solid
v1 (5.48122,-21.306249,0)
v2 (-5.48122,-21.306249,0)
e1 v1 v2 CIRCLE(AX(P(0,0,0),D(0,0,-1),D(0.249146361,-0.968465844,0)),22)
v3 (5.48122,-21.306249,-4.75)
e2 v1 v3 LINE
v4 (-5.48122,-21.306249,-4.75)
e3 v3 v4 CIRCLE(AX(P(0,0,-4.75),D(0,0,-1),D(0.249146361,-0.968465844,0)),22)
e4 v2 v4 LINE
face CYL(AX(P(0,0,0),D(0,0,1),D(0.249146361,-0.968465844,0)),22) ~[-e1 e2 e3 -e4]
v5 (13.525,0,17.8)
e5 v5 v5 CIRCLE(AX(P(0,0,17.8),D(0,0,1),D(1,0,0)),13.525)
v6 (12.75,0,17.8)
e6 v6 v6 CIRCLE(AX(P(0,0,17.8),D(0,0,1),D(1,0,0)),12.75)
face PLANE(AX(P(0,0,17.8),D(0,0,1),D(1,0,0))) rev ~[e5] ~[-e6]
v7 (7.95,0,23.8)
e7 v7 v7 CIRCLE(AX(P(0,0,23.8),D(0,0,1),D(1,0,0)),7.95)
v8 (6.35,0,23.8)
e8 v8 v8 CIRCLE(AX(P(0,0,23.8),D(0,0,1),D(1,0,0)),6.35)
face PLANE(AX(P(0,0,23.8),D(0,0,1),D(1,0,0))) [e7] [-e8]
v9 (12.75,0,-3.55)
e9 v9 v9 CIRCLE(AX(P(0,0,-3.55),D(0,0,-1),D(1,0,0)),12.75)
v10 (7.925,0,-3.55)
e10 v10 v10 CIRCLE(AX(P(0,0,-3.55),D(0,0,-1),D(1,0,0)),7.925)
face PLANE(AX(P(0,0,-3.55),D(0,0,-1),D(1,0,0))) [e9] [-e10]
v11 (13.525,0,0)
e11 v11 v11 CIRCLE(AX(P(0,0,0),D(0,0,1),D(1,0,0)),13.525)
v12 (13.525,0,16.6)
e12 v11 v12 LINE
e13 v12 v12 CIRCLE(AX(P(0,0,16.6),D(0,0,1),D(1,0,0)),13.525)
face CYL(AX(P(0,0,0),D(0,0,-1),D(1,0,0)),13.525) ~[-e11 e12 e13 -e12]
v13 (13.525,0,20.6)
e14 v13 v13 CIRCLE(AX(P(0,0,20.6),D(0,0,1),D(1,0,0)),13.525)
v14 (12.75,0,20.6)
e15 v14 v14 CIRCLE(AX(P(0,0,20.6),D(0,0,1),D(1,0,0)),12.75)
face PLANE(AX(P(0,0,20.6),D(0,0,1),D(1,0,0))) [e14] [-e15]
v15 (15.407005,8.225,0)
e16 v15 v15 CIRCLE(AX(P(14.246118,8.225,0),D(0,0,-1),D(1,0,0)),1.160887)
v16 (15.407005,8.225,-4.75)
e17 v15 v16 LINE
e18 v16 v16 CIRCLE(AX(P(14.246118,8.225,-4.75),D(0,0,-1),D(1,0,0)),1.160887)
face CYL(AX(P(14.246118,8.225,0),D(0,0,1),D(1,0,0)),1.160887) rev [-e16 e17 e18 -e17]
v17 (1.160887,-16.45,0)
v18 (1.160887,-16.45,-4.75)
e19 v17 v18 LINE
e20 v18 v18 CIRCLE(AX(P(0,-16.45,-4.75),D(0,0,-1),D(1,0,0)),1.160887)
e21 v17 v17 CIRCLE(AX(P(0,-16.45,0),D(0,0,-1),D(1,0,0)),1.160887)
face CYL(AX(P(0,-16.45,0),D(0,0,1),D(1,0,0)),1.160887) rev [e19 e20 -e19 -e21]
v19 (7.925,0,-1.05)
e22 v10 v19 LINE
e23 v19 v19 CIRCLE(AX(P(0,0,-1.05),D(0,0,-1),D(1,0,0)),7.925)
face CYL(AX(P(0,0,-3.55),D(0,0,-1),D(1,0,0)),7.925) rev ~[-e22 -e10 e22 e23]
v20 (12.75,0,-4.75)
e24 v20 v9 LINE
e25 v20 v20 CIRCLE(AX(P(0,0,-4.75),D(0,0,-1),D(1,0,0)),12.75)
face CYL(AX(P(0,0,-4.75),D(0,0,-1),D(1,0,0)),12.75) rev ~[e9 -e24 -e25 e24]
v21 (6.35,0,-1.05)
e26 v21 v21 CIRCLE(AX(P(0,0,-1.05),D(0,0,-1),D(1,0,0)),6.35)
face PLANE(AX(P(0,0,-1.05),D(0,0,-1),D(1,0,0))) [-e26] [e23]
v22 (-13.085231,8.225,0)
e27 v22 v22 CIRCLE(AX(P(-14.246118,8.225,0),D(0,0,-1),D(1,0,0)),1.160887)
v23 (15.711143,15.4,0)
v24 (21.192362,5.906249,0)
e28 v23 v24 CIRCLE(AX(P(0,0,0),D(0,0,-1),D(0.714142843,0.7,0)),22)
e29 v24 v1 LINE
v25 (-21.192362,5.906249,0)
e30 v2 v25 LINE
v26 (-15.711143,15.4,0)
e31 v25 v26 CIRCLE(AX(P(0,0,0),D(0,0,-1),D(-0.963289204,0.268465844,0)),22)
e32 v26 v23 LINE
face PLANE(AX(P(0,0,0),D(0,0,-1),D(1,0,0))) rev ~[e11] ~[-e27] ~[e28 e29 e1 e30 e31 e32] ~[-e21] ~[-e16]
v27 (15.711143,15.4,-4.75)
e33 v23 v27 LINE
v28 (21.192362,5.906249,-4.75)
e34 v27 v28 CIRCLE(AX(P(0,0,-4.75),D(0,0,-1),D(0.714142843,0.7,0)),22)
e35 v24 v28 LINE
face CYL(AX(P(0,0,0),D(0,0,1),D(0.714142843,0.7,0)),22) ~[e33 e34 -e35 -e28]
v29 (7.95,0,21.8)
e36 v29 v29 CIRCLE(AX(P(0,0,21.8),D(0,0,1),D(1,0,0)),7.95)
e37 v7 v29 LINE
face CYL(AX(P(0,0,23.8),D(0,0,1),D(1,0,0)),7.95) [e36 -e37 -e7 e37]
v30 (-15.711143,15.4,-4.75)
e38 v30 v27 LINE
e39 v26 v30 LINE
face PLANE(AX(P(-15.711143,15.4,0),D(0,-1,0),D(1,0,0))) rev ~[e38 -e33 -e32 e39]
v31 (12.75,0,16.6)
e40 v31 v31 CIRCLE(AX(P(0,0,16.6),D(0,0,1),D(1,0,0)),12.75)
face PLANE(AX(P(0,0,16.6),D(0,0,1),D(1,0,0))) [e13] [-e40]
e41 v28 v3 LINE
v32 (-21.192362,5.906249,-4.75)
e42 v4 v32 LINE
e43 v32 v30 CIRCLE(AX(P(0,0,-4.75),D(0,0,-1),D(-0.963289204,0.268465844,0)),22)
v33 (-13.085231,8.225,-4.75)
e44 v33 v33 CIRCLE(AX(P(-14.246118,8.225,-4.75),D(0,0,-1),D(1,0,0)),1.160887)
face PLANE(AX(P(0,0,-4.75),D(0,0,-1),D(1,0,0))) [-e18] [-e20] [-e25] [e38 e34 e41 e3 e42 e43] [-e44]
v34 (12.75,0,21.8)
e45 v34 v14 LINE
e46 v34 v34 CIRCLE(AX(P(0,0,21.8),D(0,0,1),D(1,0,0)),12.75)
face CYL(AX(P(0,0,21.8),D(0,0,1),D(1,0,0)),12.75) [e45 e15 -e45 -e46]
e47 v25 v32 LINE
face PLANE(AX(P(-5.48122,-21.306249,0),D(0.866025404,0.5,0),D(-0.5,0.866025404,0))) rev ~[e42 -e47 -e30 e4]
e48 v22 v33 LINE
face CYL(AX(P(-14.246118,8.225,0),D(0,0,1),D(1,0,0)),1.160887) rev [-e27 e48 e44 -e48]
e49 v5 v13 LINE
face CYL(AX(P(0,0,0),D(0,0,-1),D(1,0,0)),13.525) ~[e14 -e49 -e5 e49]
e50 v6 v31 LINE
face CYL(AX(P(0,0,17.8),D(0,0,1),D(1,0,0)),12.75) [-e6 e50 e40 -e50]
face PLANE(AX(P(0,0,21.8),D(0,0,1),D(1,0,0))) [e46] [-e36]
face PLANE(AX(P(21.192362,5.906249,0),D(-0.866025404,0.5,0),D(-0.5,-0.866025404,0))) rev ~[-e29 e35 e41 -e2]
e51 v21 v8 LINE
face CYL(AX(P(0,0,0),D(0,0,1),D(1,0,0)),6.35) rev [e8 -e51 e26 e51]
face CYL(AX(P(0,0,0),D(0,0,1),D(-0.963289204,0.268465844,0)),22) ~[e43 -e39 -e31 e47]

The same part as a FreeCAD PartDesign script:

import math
import FreeCAD as App
import Part
import Sketcher

V = App.Vector
Q = App.Units.Quantity

doc = App.newDocument("Part")
params = doc.addObject("Spreadsheet::Sheet", "Params")
for row, (alias, value) in enumerate([
    ("sketch1_diameter", "12.7 mm"),
    ("sketch1_diameter2", "27.05 mm"),
    ("pad1_length", "23.8 mm"),
    ("sketch2_diameter", "15.9 mm"),
    ("sketch2_diameter2", "27.05 mm"),
    ("pocket1_length", "2 mm"),
    ("sketch3_diameter", "25.5 mm"),
    ("sketch3_diameter2", "27.05 mm"),
    ("pocket2_length", "1.2 mm"),
    ("sketch4_radius", "22 mm"),
    ("sketch4_diameter", "12.7 mm"),
    ("pad2_length", "4.75 mm"),
    ("sketch5_diameter", "25.5 mm"),
    ("sketch5_diameter2", "12.7 mm"),
    ("pocket3_length", "1.2 mm"),
    ("sketch6_diameter", "12.7 mm"),
    ("sketch6_diameter2", "15.85 mm"),
    ("pocket4_length", "2.5 mm"),
    ("sketch7_diameter", "25.5 mm"),
    ("sketch7_diameter2", "27.05 mm"),
    ("pocket5_length", "1.2 mm"),
], start=1):
    params.set(f"A{row}", alias)
    params.set(f"B{row}", "=" + value)
    params.setAlias(f"B{row}", alias)

body = doc.addObject("PartDesign::Body", "Body")

# Sketch on XY plane
sketch1 = body.newObject("Sketcher::SketchObject", "Sketch")
sketch1.AttachmentSupport = (doc.getObject("XY_Plane"), [""])
sketch1.MapMode = "FlatFace"
sketch1.addGeometry([
    Part.Circle(V(0, 0, 0), V(0, 0, 1), 13.525),
    Part.Circle(V(0, 0, 0), V(0, 0, 1), 6.35),
], False)
sketch1.addConstraint([
    Sketcher.Constraint("Coincident", 0, 3, -1, 1),
    Sketcher.Constraint("Coincident", 1, 3, -1, 1),
    Sketcher.Constraint("Diameter", 1, Q("12.7 mm")),
    Sketcher.Constraint("Diameter", 0, Q("27.05 mm")),
])
sketch1.setExpression("Constraints[2]", "Params.sketch1_diameter")
sketch1.setExpression("Constraints[3]", "Params.sketch1_diameter2")
pad1 = body.newObject("PartDesign::Pad", "Pad")
pad1.Profile = sketch1
pad1.setExpression("Length", "Params.pad1_length")

# Sketch on XY plane
sketch2 = body.newObject("Sketcher::SketchObject", "Sketch001")
sketch2.AttachmentSupport = (doc.getObject("XY_Plane"), [""])
sketch2.MapMode = "FlatFace"
sketch2.AttachmentOffset = App.Placement(V(0, 0, 23.8), App.Rotation())
sketch2.addGeometry([
    Part.Circle(V(0, 0, 0), V(0, 0, 1), 13.525),
    Part.Circle(V(0, 0, 0), V(0, 0, 1), 7.95),
], False)
sketch2.addConstraint([
    Sketcher.Constraint("Coincident", 0, 3, -1, 1),
    Sketcher.Constraint("Coincident", 1, 3, -1, 1),
    Sketcher.Constraint("Diameter", 1, Q("15.9 mm")),
    Sketcher.Constraint("Diameter", 0, Q("27.05 mm")),
])
sketch2.setExpression("Constraints[2]", "Params.sketch2_diameter")
sketch2.setExpression("Constraints[3]", "Params.sketch2_diameter2")
pocket1 = body.newObject("PartDesign::Pocket", "Pocket")
pocket1.Profile = sketch2
pocket1.setExpression("Length", "Params.pocket1_length")

# Sketch on XY plane
sketch3 = body.newObject("Sketcher::SketchObject", "Sketch002")
sketch3.AttachmentSupport = (doc.getObject("XY_Plane"), [""])
sketch3.MapMode = "FlatFace"
sketch3.AttachmentOffset = App.Placement(V(0, 0, 21.8), App.Rotation())
sketch3.addGeometry([
    Part.Circle(V(0, 0, 0), V(0, 0, 1), 13.525),
    Part.Circle(V(0, 0, 0), V(0, 0, 1), 12.75),
], False)
sketch3.addConstraint([
    Sketcher.Constraint("Coincident", 0, 3, -1, 1),
    Sketcher.Constraint("Coincident", 1, 3, -1, 1),
    Sketcher.Constraint("Diameter", 1, Q("25.5 mm")),
    Sketcher.Constraint("Diameter", 0, Q("27.05 mm")),
])
sketch3.setExpression("Constraints[2]", "Params.sketch3_diameter")
sketch3.setExpression("Constraints[3]", "Params.sketch3_diameter2")
pocket2 = body.newObject("PartDesign::Pocket", "Pocket001")
pocket2.Profile = sketch3
pocket2.setExpression("Length", "Params.pocket2_length")

# Sketch on XY plane
sketch4 = body.newObject("Sketcher::SketchObject", "Sketch003")
sketch4.AttachmentSupport = (doc.getObject("XY_Plane"), [""])
sketch4.MapMode = "FlatFace"
sketch4.addGeometry([
    Part.LineSegment(V(21.192362, 5.906249, 0), V(5.48122, -21.306249, 0)),  # 0
    Part.ArcOfCircle(Part.Circle(V(0, 0, 0), V(0, 0, 1), 22), math.radians(-104.427004), math.radians(-75.572996)),  # 1
    Part.LineSegment(V(-5.48122, -21.306249, 0), V(-21.192362, 5.906249, 0)),  # 2
    Part.ArcOfCircle(Part.Circle(V(0, 0, 0), V(0, 0, 1), 22), math.radians(135.572996), math.radians(164.427004)),  # 3
    Part.LineSegment(V(-15.711143, 15.4, 0), V(15.711143, 15.4, 0)),  # 4
    Part.ArcOfCircle(Part.Circle(V(0, 0, 0), V(0, 0, 1), 22), math.radians(15.572996), math.radians(44.427004)),  # 5
    Part.Circle(V(-14.246118, 8.225, 0), V(0, 0, 1), 1.160887),  # 6
    Part.Circle(V(14.246118, 8.225, 0), V(0, 0, 1), 1.160887),  # 7
    Part.Circle(V(0, 0, 0), V(0, 0, 1), 6.35),  # 8
    Part.Circle(V(0, -16.45, 0), V(0, 0, 1), 1.160887),  # 9
], False)
sketch4.addConstraint([
    Sketcher.Constraint("Coincident", 0, 2, 1, 2),
    Sketcher.Constraint("Coincident", 1, 1, 2, 1),
    Sketcher.Constraint("Coincident", 2, 2, 3, 2),
    Sketcher.Constraint("Coincident", 3, 1, 4, 1),
    Sketcher.Constraint("Coincident", 4, 2, 5, 2),
    Sketcher.Constraint("Coincident", 5, 1, 0, 1),
    Sketcher.Constraint("Horizontal", 4),
    Sketcher.Constraint("Coincident", 1, 3, -1, 1),
    Sketcher.Constraint("Coincident", 3, 3, -1, 1),
    Sketcher.Constraint("Coincident", 5, 3, -1, 1),
    Sketcher.Constraint("Coincident", 8, 3, -1, 1),
    Sketcher.Constraint("Equal", 1, 3),
    Sketcher.Constraint("Equal", 3, 5),
    Sketcher.Constraint("Equal", 6, 7),
    Sketcher.Constraint("Equal", 7, 9),
    Sketcher.Constraint("Symmetric", 6, 3, 7, 3, -2),
    Sketcher.Constraint("PointOnObject", 9, 3, -2),
    Sketcher.Constraint("Horizontal", 0, 2, 1, 1),
    Sketcher.Constraint("Horizontal", 2, 2, 5, 1),
    Sketcher.Constraint("Radius", 1, Q("22 mm")),
    Sketcher.Constraint("Diameter", 8, Q("12.7 mm")),
    Sketcher.Constraint("Angle", 0, Q("-120 deg")),
    Sketcher.Constraint("DistanceY", -1, 1, 3, 1, Q("15.4 mm")),
    Sketcher.Constraint("DistanceY", 9, 3, -1, 1, Q("16.45 mm")),
    Sketcher.Constraint("Diameter", 6, Q("2.321774 mm")),
    Sketcher.Constraint("DistanceY", -1, 1, 6, 3, Q("8.225 mm")),
    Sketcher.Constraint("DistanceX", -1, 1, 0, 2, Q("5.48122 mm")),
    Sketcher.Constraint("DistanceX", 6, 3, -1, 1, Q("14.246118 mm")),
])
sketch4.setExpression("Constraints[19]", "Params.sketch4_radius")
sketch4.setExpression("Constraints[20]", "Params.sketch4_diameter")
pad2 = body.newObject("PartDesign::Pad", "Pad001")
pad2.Profile = sketch4
pad2.setExpression("Length", "Params.pad2_length")
pad2.Reversed = True

# Sketch on XY plane
sketch5 = body.newObject("Sketcher::SketchObject", "Sketch004")
sketch5.AttachmentSupport = (doc.getObject("XY_Plane"), [""])
sketch5.MapMode = "FlatFace"
sketch5.AttachmentOffset = App.Placement(V(0, 0, -4.75), App.Rotation())
sketch5.addGeometry([
    Part.Circle(V(0, 0, 0), V(0, 0, 1), 12.75),
    Part.Circle(V(0, 0, 0), V(0, 0, 1), 6.35),
], False)
sketch5.addConstraint([
    Sketcher.Constraint("Coincident", 0, 3, -1, 1),
    Sketcher.Constraint("Coincident", 1, 3, -1, 1),
    Sketcher.Constraint("Diameter", 0, Q("25.5 mm")),
    Sketcher.Constraint("Diameter", 1, Q("12.7 mm")),
])
sketch5.setExpression("Constraints[2]", "Params.sketch5_diameter")
sketch5.setExpression("Constraints[3]", "Params.sketch5_diameter2")
pocket3 = body.newObject("PartDesign::Pocket", "Pocket002")
pocket3.Profile = sketch5
pocket3.setExpression("Length", "Params.pocket3_length")
pocket3.Reversed = True

# Sketch on XY plane
sketch6 = body.newObject("Sketcher::SketchObject", "Sketch005")
sketch6.AttachmentSupport = (doc.getObject("XY_Plane"), [""])
sketch6.MapMode = "FlatFace"
sketch6.AttachmentOffset = App.Placement(V(0, 0, -3.55), App.Rotation())
sketch6.addGeometry([
    Part.Circle(V(0, 0, 0), V(0, 0, 1), 7.925),
    Part.Circle(V(0, 0, 0), V(0, 0, 1), 6.35),
], False)
sketch6.addConstraint([
    Sketcher.Constraint("Coincident", 0, 3, -1, 1),
    Sketcher.Constraint("Coincident", 1, 3, -1, 1),
    Sketcher.Constraint("Diameter", 1, Q("12.7 mm")),
    Sketcher.Constraint("Diameter", 0, Q("15.85 mm")),
])
sketch6.setExpression("Constraints[2]", "Params.sketch6_diameter")
sketch6.setExpression("Constraints[3]", "Params.sketch6_diameter2")
pocket4 = body.newObject("PartDesign::Pocket", "Pocket003")
pocket4.Profile = sketch6
pocket4.setExpression("Length", "Params.pocket4_length")
pocket4.Reversed = True

# Sketch on XY plane
sketch7 = body.newObject("Sketcher::SketchObject", "Sketch006")
sketch7.AttachmentSupport = (doc.getObject("XY_Plane"), [""])
sketch7.MapMode = "FlatFace"
sketch7.AttachmentOffset = App.Placement(V(0, 0, 17.8), App.Rotation())
sketch7.addGeometry([
    Part.Circle(V(0, 0, 0), V(0, 0, 1), 13.525),
    Part.Circle(V(0, 0, 0), V(0, 0, 1), 12.75),
], False)
sketch7.addConstraint([
    Sketcher.Constraint("Coincident", 0, 3, -1, 1),
    Sketcher.Constraint("Coincident", 1, 3, -1, 1),
    Sketcher.Constraint("Diameter", 1, Q("25.5 mm")),
    Sketcher.Constraint("Diameter", 0, Q("27.05 mm")),
])
sketch7.setExpression("Constraints[2]", "Params.sketch7_diameter")
sketch7.setExpression("Constraints[3]", "Params.sketch7_diameter2")
pocket5 = body.newObject("PartDesign::Pocket", "Pocket004")
pocket5.Profile = sketch7
pocket5.setExpression("Length", "Params.pocket5_length")

doc.recompute()
